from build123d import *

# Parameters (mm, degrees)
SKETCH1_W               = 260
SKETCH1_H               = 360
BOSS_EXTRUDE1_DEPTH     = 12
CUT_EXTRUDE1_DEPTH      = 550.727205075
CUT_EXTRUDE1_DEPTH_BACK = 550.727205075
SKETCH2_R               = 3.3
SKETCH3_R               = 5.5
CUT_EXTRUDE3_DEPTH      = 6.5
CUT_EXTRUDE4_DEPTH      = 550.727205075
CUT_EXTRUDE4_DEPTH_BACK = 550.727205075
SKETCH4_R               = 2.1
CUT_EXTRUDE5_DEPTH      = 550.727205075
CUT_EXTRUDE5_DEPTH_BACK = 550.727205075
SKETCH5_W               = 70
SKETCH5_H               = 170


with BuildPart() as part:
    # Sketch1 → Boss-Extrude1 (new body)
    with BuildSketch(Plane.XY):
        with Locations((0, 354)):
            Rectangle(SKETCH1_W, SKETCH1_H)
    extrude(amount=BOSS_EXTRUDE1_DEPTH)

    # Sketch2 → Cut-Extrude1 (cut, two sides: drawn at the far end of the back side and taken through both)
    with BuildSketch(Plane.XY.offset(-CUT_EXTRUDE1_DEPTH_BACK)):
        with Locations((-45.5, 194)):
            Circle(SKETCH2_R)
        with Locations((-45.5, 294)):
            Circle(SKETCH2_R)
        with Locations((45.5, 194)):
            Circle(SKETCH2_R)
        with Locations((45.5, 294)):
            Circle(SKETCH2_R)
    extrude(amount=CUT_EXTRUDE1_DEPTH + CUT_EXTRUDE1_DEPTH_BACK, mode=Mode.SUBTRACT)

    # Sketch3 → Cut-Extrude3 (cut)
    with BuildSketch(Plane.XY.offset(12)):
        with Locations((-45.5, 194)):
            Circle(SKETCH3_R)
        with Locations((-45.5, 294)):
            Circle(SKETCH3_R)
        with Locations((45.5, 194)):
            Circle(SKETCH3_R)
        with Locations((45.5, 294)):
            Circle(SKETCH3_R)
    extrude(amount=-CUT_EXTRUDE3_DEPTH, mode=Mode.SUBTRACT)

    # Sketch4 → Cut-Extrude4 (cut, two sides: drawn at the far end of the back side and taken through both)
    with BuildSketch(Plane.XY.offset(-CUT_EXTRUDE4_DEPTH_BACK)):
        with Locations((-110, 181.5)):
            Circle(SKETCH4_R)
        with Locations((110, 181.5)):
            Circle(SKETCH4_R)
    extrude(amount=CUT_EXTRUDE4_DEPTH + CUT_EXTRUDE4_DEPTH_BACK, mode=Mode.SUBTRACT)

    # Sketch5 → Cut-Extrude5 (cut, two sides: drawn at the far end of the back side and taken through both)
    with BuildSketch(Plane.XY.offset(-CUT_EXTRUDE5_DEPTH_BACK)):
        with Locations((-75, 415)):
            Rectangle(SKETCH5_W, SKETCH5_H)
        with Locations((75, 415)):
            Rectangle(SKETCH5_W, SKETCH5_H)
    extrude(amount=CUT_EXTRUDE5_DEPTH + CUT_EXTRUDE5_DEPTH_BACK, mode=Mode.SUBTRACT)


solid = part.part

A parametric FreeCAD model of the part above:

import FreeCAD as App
import Part
import Sketcher

V = App.Vector


def add_polygon(sketch, points):
    """Adds a closed chain of lines whose ends are joined by coincident constraints."""
    first, n = sketch.GeometryCount, len(points)
    for a, b in zip(points, points[1:] + points[:1]):
        sketch.addGeometry(Part.LineSegment(App.Vector(*a, 0), App.Vector(*b, 0)), False)
    for i in range(n):
        sketch.addConstraint(Sketcher.Constraint("Coincident", first + i, 2, first + (i + 1) % n, 1))

doc = App.newDocument("Part")
body = doc.addObject("PartDesign::Body", "Body")

sketch1 = doc.addObject("Sketcher::SketchObject", "Sketch")
body.addObject(sketch1)
sketch1.AttachmentSupport = (doc.XY_Plane, [""])
sketch1.MapMode = "FlatFace"
add_polygon(sketch1, [(-130, 534), (-130, 174), (130, 174), (130, 534)])
sketch1.addConstraint([
    Sketcher.Constraint("Vertical", 0),
    Sketcher.Constraint("Horizontal", 1),
    Sketcher.Constraint("Vertical", 2),
    Sketcher.Constraint("Horizontal", 3),
    Sketcher.Constraint("DistanceX", 1, 1, 1, 2, 260.0),
    Sketcher.Constraint("DistanceY", 0, 2, 0, 1, 360.0),
    Sketcher.Constraint("DistanceX", 0, 2, -1, 1, 130.0),
    Sketcher.Constraint("DistanceY", -1, 1, 0, 2, 174.0),
])
pad1 = doc.addObject("PartDesign::Pad", "Pad")
body.addObject(pad1)
pad1.Profile = sketch1
pad1.Length = 12

sketch2 = doc.addObject("Sketcher::SketchObject", "Sketch001")
body.addObject(sketch2)
sketch2.AttachmentSupport = (doc.XY_Plane, [""])
sketch2.MapMode = "FlatFace"
sketch2.addGeometry([
    Part.Circle(V(-45.5, 194, 0), V(0, 0, 1), 3.3),
    Part.Circle(V(-45.5, 294, 0), V(0, 0, 1), 3.3),
    Part.Circle(V(45.5, 194, 0), V(0, 0, 1), 3.3),
    Part.Circle(V(45.5, 294, 0), V(0, 0, 1), 3.3),
], False)
sketch2.addConstraint([
    Sketcher.Constraint("Equal", 0, 1),
    Sketcher.Constraint("Equal", 1, 2),
    Sketcher.Constraint("Equal", 2, 3),
    Sketcher.Constraint("Symmetric", 0, 3, 2, 3, -2),
    Sketcher.Constraint("Symmetric", 1, 3, 3, 3, -2),
    Sketcher.Constraint("Vertical", 0, 3, 1, 3),
    Sketcher.Constraint("Diameter", 0, 6.6),
    Sketcher.Constraint("DistanceY", -1, 1, 0, 3, 194.0),
    Sketcher.Constraint("DistanceY", -1, 1, 1, 3, 294.0),
    Sketcher.Constraint("DistanceX", 0, 3, 2, 3, 91.0),
])
pocket1 = doc.addObject("PartDesign::Pocket", "Pocket")
body.addObject(pocket1)
pocket1.Profile = sketch2
pocket1.Type = "ThroughAll"
pocket1.Midplane = True

sketch3 = doc.addObject("Sketcher::SketchObject", "Sketch002")
body.addObject(sketch3)
sketch3.AttachmentSupport = (doc.XY_Plane, [""])
sketch3.MapMode = "FlatFace"
sketch3.AttachmentOffset = App.Placement(V(0, 0, 12), App.Rotation())
sketch3.addGeometry([
    Part.Circle(V(-46, 194, 0), V(0, 0, 1), 6),
    Part.Circle(V(-46, 294, 0), V(0, 0, 1), 6),
    Part.Circle(V(46, 194, 0), V(0, 0, 1), 6),
    Part.Circle(V(46, 294, 0), V(0, 0, 1), 6),
], False)
sketch3.addConstraint([
    Sketcher.Constraint("Equal", 0, 1),
    Sketcher.Constraint("Equal", 1, 2),
    Sketcher.Constraint("Equal", 2, 3),
    Sketcher.Constraint("Symmetric", 0, 3, 2, 3, -2),
    Sketcher.Constraint("Symmetric", 1, 3, 3, 3, -2),
    Sketcher.Constraint("Vertical", 0, 3, 1, 3),
    Sketcher.Constraint("Diameter", 0, 11.0),
    Sketcher.Constraint("DistanceY", -1, 1, 0, 3, 194.0),
    Sketcher.Constraint("DistanceY", -1, 1, 1, 3, 294.0),
    Sketcher.Constraint("DistanceX", 0, 3, 2, 3, 91.0),
])
pocket2 = doc.addObject("PartDesign::Pocket", "Pocket001")
body.addObject(pocket2)
pocket2.Profile = sketch3
pocket2.Length = 6.5

sketch4 = doc.addObject("Sketcher::SketchObject", "Sketch003")
body.addObject(sketch4)
sketch4.AttachmentSupport = (doc.XY_Plane, [""])
sketch4.MapMode = "FlatFace"
sketch4.addGeometry([
    Part.Circle(V(-110, 181.5, 0), V(0, 0, 1), 2.1),
    Part.Circle(V(110, 181.5, 0), V(0, 0, 1), 2.1),
], False)
sketch4.addConstraint([
    Sketcher.Constraint("Equal", 0, 1),
    Sketcher.Constraint("Symmetric", 0, 3, 1, 3, -2),
    Sketcher.Constraint("Diameter", 0, 4.2),
    Sketcher.Constraint("DistanceX", 0, 3, -1, 1, 110.0),
    Sketcher.Constraint("DistanceY", -1, 1, 0, 3, 181.5),
])
pocket3 = doc.addObject("PartDesign::Pocket", "Pocket002")
body.addObject(pocket3)
pocket3.Profile = sketch4
pocket3.Type = "ThroughAll"
pocket3.Midplane = True

sketch5 = doc.addObject("Sketcher::SketchObject", "Sketch004")
body.addObject(sketch5)
sketch5.AttachmentSupport = (doc.XY_Plane, [""])
sketch5.MapMode = "FlatFace"
add_polygon(sketch5, [(-110, 500), (-110, 330), (-40, 330), (-40, 500)])
add_polygon(sketch5, [(40, 500), (40, 330), (110, 330), (110, 500)])
sketch5.addConstraint([
    Sketcher.Constraint("Vertical", 0),
    Sketcher.Constraint("Horizontal", 1),
    Sketcher.Constraint("Vertical", 2),
    Sketcher.Constraint("Horizontal", 3),
    Sketcher.Constraint("Vertical", 4),
    Sketcher.Constraint("Horizontal", 5),
    Sketcher.Constraint("Vertical", 6),
    Sketcher.Constraint("Horizontal", 7),
    Sketcher.Constraint("Symmetric", 1, 2, 4, 2, -2),
    Sketcher.Constraint("Symmetric", 3, 2, 6, 2, -2),
    Sketcher.Constraint("DistanceX", 1, 1, 1, 2, 70.0),
    Sketcher.Constraint("DistanceY", 0, 2, 0, 1, 170.0),
    Sketcher.Constraint("DistanceX", 0, 2, -1, 1, 110.0),
    Sketcher.Constraint("DistanceY", -1, 1, 0, 2, 330.0),
])
pocket4 = doc.addObject("PartDesign::Pocket", "Pocket003")
body.addObject(pocket4)
pocket4.Profile = sketch5
pocket4.Type = "ThroughAll"
pocket4.Midplane = True

doc.recompute()
